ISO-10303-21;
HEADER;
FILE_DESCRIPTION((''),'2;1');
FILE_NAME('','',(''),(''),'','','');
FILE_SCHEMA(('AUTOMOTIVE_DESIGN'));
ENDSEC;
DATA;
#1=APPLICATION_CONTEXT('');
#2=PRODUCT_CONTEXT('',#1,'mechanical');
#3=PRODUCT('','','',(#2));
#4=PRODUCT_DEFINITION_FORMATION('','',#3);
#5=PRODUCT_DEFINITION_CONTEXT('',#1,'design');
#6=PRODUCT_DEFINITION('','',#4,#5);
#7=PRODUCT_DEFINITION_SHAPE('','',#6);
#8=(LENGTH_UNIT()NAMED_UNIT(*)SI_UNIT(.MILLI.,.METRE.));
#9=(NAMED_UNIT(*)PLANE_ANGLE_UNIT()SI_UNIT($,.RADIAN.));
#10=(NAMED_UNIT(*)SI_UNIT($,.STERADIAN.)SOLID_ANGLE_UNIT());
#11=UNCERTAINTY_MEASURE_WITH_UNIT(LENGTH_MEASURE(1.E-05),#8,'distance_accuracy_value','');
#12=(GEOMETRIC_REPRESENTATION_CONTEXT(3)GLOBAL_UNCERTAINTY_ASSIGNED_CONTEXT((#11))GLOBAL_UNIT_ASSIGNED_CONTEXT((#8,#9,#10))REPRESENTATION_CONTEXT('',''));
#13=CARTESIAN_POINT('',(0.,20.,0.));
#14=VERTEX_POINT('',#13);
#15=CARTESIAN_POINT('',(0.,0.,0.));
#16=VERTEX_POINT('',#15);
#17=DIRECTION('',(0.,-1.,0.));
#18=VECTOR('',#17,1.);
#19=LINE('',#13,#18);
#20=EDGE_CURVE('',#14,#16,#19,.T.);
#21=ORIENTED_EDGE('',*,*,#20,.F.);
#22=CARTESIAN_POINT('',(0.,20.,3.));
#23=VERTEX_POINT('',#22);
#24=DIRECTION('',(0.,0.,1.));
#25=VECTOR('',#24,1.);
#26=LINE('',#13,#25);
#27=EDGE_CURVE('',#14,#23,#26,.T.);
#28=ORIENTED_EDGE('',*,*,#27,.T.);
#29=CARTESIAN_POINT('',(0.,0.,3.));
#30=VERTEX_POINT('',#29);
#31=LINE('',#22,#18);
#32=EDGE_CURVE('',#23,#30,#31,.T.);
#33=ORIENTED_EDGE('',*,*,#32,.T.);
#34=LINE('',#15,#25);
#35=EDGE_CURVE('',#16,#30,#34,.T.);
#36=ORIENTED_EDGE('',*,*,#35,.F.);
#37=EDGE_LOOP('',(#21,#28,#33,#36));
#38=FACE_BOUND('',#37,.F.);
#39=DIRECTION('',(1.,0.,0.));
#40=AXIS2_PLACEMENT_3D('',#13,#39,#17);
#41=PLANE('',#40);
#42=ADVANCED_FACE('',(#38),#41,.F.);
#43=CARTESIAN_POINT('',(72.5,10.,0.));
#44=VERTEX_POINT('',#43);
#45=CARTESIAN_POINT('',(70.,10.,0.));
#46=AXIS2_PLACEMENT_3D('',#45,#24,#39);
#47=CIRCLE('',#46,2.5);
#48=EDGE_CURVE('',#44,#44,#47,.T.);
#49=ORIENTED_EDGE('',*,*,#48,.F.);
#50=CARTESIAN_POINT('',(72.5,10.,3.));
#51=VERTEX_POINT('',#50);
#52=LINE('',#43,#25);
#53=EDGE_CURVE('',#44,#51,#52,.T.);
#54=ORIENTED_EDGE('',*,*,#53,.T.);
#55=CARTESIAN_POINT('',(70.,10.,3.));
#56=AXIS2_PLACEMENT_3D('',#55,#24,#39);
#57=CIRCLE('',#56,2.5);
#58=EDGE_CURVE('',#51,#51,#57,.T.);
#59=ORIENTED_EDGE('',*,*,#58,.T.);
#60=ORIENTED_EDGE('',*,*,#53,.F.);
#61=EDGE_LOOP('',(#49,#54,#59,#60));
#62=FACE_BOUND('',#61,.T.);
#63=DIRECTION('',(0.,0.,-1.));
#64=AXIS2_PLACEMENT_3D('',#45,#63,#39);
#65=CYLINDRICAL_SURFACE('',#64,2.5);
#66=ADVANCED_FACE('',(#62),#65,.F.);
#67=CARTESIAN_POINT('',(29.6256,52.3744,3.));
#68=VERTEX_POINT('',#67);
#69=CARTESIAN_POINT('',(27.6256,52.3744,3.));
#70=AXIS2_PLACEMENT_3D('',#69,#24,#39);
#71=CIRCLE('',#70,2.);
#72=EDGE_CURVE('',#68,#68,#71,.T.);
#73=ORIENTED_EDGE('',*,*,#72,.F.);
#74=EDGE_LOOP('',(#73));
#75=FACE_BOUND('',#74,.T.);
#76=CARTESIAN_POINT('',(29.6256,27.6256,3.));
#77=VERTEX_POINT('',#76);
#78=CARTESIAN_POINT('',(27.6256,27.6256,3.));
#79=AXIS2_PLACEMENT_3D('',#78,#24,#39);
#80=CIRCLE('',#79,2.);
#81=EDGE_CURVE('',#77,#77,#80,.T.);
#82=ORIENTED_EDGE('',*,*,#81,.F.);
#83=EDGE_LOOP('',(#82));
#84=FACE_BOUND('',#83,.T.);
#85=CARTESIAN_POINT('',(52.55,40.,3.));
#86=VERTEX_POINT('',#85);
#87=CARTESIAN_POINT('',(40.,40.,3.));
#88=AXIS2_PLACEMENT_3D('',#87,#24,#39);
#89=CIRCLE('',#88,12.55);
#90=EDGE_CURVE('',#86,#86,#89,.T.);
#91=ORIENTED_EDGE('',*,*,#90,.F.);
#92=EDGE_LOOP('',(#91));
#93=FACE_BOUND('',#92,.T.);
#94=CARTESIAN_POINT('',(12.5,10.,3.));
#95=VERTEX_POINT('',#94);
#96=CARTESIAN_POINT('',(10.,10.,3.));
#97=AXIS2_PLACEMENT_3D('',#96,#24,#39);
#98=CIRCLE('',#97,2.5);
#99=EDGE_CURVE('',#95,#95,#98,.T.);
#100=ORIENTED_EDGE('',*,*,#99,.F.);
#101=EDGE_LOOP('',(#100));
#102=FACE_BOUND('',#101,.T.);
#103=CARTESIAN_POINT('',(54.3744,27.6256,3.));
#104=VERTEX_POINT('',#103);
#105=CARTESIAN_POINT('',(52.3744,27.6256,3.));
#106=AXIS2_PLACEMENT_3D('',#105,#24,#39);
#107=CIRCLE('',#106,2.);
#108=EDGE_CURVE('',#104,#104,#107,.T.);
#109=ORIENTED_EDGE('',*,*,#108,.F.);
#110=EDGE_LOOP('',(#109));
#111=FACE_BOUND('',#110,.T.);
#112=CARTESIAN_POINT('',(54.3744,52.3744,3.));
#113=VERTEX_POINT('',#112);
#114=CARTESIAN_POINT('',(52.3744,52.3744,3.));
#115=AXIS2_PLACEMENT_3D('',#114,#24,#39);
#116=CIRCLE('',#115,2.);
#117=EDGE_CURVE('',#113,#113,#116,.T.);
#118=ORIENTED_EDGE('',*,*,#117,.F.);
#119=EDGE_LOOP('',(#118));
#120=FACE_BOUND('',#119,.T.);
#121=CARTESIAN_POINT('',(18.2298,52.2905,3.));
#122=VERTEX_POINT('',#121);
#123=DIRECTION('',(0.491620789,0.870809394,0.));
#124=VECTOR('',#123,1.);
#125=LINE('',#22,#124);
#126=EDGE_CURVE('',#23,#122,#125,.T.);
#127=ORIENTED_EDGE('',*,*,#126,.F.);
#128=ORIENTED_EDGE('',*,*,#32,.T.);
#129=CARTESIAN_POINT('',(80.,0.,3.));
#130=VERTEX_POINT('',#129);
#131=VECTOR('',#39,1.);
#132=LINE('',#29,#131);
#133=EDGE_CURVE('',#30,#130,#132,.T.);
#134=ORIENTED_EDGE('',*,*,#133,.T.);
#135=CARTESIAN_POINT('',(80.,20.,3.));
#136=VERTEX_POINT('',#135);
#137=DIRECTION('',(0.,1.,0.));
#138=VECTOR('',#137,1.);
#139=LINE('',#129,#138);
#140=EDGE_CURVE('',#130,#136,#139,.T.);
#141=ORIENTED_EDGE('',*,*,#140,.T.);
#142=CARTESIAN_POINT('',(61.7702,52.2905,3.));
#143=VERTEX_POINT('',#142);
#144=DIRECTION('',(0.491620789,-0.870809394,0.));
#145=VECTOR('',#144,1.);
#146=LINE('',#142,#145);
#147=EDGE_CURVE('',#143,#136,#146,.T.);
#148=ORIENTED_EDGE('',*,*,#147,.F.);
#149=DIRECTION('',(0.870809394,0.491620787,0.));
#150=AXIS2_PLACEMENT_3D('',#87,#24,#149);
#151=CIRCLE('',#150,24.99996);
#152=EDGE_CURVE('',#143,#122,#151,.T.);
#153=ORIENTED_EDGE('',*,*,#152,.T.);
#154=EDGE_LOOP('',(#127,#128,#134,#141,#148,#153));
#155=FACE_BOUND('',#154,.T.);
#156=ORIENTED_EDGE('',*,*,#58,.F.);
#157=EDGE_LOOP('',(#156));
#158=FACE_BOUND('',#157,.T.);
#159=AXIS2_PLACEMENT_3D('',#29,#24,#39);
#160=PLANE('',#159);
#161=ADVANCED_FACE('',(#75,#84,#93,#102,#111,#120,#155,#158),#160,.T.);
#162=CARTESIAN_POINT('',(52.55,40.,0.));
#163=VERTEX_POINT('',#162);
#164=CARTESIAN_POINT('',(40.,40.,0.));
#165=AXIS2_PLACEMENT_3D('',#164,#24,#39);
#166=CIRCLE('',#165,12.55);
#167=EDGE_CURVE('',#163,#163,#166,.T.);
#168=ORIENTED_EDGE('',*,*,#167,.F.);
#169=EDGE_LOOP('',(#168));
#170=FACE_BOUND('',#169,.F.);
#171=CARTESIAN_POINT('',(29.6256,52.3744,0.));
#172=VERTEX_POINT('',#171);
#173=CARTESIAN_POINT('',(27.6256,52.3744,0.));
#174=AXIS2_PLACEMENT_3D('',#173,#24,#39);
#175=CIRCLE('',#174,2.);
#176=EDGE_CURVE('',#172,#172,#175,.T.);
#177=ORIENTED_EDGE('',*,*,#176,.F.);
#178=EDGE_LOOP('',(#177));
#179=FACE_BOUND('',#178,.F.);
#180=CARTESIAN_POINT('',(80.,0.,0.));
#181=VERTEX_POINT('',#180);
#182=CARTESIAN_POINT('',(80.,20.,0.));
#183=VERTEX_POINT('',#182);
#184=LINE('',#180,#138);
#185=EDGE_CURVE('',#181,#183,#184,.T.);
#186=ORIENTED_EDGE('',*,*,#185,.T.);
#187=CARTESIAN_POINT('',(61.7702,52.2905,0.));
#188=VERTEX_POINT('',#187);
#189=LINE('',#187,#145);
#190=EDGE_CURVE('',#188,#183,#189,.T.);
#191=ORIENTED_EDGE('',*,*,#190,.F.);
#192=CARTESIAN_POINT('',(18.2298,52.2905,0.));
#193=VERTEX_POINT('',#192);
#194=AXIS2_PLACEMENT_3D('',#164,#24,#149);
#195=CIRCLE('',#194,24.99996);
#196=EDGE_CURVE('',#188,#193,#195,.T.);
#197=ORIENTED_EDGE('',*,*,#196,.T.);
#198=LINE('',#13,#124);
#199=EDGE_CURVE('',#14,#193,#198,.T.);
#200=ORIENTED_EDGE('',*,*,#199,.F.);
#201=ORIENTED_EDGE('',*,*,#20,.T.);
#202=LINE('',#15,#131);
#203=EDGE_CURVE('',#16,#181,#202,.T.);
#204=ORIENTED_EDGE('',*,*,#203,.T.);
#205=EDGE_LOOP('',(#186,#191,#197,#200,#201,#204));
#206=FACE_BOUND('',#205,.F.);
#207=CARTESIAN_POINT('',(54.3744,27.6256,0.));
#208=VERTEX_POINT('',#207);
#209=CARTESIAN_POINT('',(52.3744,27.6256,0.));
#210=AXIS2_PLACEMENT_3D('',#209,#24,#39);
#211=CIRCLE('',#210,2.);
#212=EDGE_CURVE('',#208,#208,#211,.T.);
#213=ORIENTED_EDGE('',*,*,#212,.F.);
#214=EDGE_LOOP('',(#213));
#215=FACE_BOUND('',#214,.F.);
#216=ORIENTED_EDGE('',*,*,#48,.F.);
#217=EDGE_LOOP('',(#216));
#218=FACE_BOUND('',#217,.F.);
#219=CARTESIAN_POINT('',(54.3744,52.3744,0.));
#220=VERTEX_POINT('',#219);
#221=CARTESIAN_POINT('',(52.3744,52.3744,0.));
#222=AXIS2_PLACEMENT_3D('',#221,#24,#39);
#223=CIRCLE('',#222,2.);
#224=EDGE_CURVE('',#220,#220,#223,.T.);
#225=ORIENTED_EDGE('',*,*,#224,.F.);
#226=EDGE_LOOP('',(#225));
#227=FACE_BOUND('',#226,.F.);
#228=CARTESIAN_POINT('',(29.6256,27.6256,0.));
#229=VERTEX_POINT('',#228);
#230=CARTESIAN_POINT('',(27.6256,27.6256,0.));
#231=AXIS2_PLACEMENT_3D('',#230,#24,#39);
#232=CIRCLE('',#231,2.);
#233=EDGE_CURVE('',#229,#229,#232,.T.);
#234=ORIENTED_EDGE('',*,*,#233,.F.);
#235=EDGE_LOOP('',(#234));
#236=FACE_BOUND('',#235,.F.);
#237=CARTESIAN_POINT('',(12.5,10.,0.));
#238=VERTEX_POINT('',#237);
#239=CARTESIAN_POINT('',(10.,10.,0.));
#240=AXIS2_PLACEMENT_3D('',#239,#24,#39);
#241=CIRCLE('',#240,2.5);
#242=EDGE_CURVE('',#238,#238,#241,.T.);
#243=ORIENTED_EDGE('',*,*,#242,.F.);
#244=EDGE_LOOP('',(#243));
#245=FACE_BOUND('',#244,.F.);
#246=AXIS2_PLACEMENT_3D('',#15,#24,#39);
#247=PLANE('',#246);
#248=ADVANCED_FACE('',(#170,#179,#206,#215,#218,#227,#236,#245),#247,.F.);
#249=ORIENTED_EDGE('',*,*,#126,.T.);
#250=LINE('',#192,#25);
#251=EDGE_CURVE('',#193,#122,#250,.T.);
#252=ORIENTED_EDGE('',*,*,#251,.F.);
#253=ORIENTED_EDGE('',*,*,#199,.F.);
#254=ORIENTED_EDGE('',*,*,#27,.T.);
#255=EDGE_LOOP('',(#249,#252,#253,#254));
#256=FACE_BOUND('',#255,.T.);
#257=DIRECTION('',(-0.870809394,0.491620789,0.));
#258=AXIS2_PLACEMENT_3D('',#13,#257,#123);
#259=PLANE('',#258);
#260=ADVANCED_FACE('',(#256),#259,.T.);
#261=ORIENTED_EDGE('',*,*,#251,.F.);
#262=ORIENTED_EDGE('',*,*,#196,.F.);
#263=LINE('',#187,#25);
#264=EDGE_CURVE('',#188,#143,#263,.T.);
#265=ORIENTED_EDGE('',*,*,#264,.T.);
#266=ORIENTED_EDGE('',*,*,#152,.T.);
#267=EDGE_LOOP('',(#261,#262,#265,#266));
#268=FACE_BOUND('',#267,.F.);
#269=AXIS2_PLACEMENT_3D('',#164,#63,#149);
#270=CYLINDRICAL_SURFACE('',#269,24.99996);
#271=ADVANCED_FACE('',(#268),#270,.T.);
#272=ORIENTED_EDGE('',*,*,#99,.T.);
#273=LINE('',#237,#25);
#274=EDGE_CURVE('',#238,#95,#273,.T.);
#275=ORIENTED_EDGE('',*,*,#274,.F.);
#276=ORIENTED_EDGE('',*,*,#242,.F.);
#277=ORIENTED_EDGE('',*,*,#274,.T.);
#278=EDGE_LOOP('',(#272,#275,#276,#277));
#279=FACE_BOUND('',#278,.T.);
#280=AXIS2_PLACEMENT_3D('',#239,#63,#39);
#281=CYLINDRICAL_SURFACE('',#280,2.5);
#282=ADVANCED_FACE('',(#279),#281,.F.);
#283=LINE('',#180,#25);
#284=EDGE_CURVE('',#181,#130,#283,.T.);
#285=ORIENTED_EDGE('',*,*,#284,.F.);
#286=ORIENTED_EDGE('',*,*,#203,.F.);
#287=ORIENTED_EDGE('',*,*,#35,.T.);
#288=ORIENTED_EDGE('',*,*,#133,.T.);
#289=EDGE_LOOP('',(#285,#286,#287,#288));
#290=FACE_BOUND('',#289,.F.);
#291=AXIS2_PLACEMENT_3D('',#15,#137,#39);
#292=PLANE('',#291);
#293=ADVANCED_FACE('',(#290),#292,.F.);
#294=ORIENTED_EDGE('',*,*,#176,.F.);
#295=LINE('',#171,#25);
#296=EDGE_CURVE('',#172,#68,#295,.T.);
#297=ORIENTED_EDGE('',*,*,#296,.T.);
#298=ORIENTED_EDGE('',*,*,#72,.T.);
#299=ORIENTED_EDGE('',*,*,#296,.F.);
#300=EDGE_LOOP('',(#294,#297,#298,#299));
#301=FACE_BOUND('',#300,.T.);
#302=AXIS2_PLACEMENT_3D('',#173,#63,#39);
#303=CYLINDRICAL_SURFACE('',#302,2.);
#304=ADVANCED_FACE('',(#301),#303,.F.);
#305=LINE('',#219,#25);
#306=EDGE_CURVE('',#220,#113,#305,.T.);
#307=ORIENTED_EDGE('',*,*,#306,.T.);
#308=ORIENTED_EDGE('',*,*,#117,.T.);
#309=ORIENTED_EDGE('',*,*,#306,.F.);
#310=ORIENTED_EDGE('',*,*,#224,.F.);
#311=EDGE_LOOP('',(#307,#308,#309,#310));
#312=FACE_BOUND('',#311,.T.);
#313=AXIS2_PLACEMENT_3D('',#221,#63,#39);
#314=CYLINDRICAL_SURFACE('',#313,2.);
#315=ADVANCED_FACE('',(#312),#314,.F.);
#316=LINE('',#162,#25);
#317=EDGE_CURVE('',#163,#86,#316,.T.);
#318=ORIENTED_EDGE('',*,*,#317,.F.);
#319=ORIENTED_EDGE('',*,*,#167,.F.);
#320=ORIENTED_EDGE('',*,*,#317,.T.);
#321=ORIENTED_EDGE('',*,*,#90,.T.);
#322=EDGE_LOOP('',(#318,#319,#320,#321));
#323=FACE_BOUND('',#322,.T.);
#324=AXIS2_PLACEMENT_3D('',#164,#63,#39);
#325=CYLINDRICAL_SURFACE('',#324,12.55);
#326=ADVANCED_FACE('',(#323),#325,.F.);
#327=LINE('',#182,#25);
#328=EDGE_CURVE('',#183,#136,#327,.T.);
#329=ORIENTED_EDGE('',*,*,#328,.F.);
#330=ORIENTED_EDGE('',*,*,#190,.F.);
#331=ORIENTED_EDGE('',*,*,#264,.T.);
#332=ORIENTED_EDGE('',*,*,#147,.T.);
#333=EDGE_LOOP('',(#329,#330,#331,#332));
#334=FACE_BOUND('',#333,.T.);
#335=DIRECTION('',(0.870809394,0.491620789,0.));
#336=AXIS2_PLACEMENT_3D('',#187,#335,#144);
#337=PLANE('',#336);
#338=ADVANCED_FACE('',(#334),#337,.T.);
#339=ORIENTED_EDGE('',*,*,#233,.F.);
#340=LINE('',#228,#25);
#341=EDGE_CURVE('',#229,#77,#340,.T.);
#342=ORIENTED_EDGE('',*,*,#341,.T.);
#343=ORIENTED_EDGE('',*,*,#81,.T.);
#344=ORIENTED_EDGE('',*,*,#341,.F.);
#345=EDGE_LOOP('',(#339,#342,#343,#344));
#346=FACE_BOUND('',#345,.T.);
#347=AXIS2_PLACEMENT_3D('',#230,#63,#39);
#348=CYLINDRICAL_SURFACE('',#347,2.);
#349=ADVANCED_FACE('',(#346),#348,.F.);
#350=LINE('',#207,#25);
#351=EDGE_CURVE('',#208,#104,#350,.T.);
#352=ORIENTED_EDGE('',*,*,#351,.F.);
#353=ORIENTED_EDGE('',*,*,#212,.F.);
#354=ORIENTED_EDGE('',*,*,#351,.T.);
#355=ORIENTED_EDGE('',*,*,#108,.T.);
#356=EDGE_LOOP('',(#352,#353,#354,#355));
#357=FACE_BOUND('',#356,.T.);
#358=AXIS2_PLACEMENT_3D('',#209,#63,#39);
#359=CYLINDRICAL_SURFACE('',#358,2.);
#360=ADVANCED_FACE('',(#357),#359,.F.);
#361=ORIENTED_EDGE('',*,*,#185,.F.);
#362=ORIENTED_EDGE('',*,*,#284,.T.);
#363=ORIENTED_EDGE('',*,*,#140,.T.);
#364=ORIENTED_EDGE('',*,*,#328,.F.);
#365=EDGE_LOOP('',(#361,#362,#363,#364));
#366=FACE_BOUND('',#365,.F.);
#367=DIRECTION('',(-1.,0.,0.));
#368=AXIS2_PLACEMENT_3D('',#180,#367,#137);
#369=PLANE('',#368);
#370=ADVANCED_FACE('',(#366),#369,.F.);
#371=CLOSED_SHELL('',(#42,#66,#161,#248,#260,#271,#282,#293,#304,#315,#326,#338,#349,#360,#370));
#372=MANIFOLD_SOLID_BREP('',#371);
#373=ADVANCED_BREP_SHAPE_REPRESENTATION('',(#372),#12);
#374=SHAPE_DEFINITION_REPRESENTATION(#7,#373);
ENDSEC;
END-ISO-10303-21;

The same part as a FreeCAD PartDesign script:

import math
import FreeCAD as App
import Part
import Sketcher
from FreeCAD import Vector
Q = App.Units.Quantity

doc = App.newDocument("Part")
body = doc.addObject("PartDesign::Body", "Body")

# Sketch on XY plane
sketch1 = body.newObject("Sketcher::SketchObject", "Sketch")
sketch1.AttachmentSupport = (doc.getObject("XY_Plane"), [""])
sketch1.MapMode = "FlatFace"
sketch1.addGeometry([
    Part.LineSegment(Vector(0, 20, 0), Vector(0, 0, 0)),  # 0
    Part.LineSegment(Vector(0, 0, 0), Vector(80, 0, 0)),  # 1
    Part.LineSegment(Vector(80, 0, 0), Vector(80, 20, 0)),  # 2
    Part.LineSegment(Vector(80, 20, 0), Vector(61.8, 52.3, 0)),  # 3
    Part.ArcOfCircle(Part.Circle(Vector(40, 40, 0), Vector(0, 0, 1), 25), math.radians(29), math.radians(151)),  # 4
    Part.LineSegment(Vector(18.2, 52.3, 0), Vector(0, 20, 0)),  # 5
    Part.Circle(Vector(10, 10, 0), Vector(0, 0, 1), 2.5),  # 6
    Part.Circle(Vector(27.6, 27.6, 0), Vector(0, 0, 1), 2),  # 7
    Part.Circle(Vector(70, 10, 0), Vector(0, 0, 1), 2.5),  # 8
    Part.Circle(Vector(52.4, 27.6, 0), Vector(0, 0, 1), 2),  # 9
    Part.Circle(Vector(27.6, 52.4, 0), Vector(0, 0, 1), 2),  # 10
    Part.Circle(Vector(40, 40, 0), Vector(0, 0, 1), 12.6),  # 11
    Part.Circle(Vector(52.4, 52.4, 0), Vector(0, 0, 1), 2),  # 12
], False)
sketch1.addConstraint([
    Sketcher.Constraint("Coincident", 0, 2, 1, 1),
    Sketcher.Constraint("Coincident", 1, 2, 2, 1),
    Sketcher.Constraint("Coincident", 2, 2, 3, 1),
    Sketcher.Constraint("Tangent", 3, 2, 4, 1),
    Sketcher.Constraint("Tangent", 4, 2, 5, 1),
    Sketcher.Constraint("Coincident", 5, 2, 0, 1),
    Sketcher.Constraint("Vertical", 0),
    Sketcher.Constraint("Horizontal", 1),
    Sketcher.Constraint("Vertical", 2),
    Sketcher.Constraint("Coincident", 0, 2, -1, 1),
    Sketcher.Constraint("Coincident", 11, 3, 4, 3),
    Sketcher.Constraint("Equal", 6, 8),
    Sketcher.Constraint("Equal", 7, 9),
    Sketcher.Constraint("Equal", 9, 10),
    Sketcher.Constraint("Equal", 10, 12),
    Sketcher.Constraint("Horizontal", 6, 3, 8, 3),
    Sketcher.Constraint("Horizontal", 7, 3, 9, 3),
    Sketcher.Constraint("Horizontal", 10, 3, 12, 3),
    Sketcher.Constraint("Horizontal", 3, 2, 4, 2),
    Sketcher.Constraint("Horizontal", 2, 2, 5, 2),
    Sketcher.Constraint("Vertical", 7, 3, 10, 3),
    Sketcher.Constraint("Vertical", 9, 3, 12, 3),
    Sketcher.Constraint("Diameter", 6, Q("5 mm")),
    Sketcher.Constraint("Diameter", 7, Q("4 mm")),
    Sketcher.Constraint("Radius", 4, Q("25 mm")),
    Sketcher.Constraint("Diameter", 11, Q("25.1 mm")),
    Sketcher.Constraint("DistanceX", 1, 1, 1, 2, Q("80 mm")),
    Sketcher.Constraint("DistanceY", 0, 2, 0, 1, Q("20 mm")),
    Sketcher.Constraint("DistanceY", -1, 1, 4, 3, Q("40 mm")),
    Sketcher.Constraint("DistanceX", -1, 1, 6, 3, Q("10 mm")),
    Sketcher.Constraint("DistanceY", -1, 1, 6, 3, Q("10 mm")),
    Sketcher.Constraint("DistanceX", 8, 3, 1, 2, Q("10 mm")),
    Sketcher.Constraint("DistanceY", 3, 2, 12, 3, Q("0.084 mm")),
    Sketcher.Constraint("DistanceY", 9, 3, 3, 2, Q("24.665 mm")),
    Sketcher.Constraint("DistanceX", -1, 1, 7, 3, Q("27.6256 mm")),
    Sketcher.Constraint("DistanceX", -1, 1, 9, 3, Q("52.3744 mm")),
])
pad1 = body.newObject("PartDesign::Pad", "Pad")
pad1.Profile = sketch1
pad1.Length = 3

doc.recompute()
